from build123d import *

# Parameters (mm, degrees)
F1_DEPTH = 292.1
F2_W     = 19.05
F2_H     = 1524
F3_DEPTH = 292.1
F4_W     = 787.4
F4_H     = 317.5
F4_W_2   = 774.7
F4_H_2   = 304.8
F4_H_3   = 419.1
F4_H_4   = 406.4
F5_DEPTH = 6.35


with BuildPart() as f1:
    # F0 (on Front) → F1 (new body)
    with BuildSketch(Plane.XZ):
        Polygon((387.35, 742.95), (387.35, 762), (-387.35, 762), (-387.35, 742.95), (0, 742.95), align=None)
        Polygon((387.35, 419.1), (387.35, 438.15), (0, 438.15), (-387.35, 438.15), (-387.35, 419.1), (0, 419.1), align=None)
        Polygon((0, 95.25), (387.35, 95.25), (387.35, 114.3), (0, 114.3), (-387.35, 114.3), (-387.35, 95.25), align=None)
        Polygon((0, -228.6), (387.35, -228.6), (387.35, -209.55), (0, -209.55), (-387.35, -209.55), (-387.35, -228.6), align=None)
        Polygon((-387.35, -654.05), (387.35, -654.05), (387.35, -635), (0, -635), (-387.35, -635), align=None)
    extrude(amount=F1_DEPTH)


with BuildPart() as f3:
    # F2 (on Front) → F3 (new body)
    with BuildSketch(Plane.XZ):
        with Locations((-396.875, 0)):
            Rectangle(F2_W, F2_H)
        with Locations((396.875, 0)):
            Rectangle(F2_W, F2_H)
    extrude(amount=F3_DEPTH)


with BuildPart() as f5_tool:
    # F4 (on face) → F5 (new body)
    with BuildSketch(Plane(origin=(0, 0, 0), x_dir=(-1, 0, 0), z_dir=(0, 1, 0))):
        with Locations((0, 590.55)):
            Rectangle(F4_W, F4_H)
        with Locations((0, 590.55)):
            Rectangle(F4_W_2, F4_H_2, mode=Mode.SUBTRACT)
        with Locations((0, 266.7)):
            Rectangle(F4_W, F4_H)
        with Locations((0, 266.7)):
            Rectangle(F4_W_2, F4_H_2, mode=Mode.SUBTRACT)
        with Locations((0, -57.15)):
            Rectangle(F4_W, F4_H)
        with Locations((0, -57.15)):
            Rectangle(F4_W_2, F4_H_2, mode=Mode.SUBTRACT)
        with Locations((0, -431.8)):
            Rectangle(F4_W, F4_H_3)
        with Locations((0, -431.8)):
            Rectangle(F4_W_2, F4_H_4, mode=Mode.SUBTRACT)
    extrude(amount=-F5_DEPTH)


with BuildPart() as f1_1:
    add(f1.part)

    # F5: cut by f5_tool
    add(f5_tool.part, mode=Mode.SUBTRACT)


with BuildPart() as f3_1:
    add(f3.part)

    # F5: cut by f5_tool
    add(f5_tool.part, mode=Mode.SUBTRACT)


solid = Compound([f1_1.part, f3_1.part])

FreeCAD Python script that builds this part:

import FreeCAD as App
import Part
import Sketcher
from FreeCAD import Vector
Q = App.Units.Quantity

doc = App.newDocument("Part")
body = doc.addObject("PartDesign::Body", "Body")
body.AllowCompound = True

# Sketch on XZ plane
sketch1 = body.newObject("Sketcher::SketchObject", "Sketch")
sketch1.AttachmentSupport = (doc.getObject("XZ_Plane"), [""])
sketch1.MapMode = "FlatFace"
sketch1.addGeometry(Part.LineSegment(Vector(387.35, 742.95, 0), Vector(387.35, 762, 0)), False)
sketch1.addGeometry(Part.LineSegment(Vector(387.35, 762, 0), Vector(-387.35, 762, 0)), False)
sketch1.addGeometry(Part.LineSegment(Vector(-387.35, 762, 0), Vector(-387.35, 742.95, 0)), False)
sketch1.addGeometry(Part.LineSegment(Vector(-387.35, 742.95, 0), Vector(387.35, 742.95, 0)), False)
sketch1.addGeometry(Part.LineSegment(Vector(387.35, 419.1, 0), Vector(387.35, 438.15, 0)), False)
sketch1.addGeometry(Part.LineSegment(Vector(387.35, 438.15, 0), Vector(-387.35, 438.15, 0)), False)
sketch1.addGeometry(Part.LineSegment(Vector(-387.35, 438.15, 0), Vector(-387.35, 419.1, 0)), False)
sketch1.addGeometry(Part.LineSegment(Vector(-387.35, 419.1, 0), Vector(387.35, 419.1, 0)), False)
sketch1.addGeometry(Part.LineSegment(Vector(387.35, 95.25, 0), Vector(387.35, 114.3, 0)), False)
sketch1.addGeometry(Part.LineSegment(Vector(387.35, 114.3, 0), Vector(-387.35, 114.3, 0)), False)
sketch1.addGeometry(Part.LineSegment(Vector(-387.35, 114.3, 0), Vector(-387.35, 95.25, 0)), False)
sketch1.addGeometry(Part.LineSegment(Vector(-387.35, 95.25, 0), Vector(387.35, 95.25, 0)), False)
sketch1.addGeometry(Part.LineSegment(Vector(387.35, -228.6, 0), Vector(387.35, -209.55, 0)), False)
sketch1.addGeometry(Part.LineSegment(Vector(387.35, -209.55, 0), Vector(-387.35, -209.55, 0)), False)
sketch1.addGeometry(Part.LineSegment(Vector(-387.35, -209.55, 0), Vector(-387.35, -228.6, 0)), False)
sketch1.addGeometry(Part.LineSegment(Vector(-387.35, -228.6, 0), Vector(387.35, -228.6, 0)), False)
sketch1.addGeometry(Part.LineSegment(Vector(-387.35, -654.05, 0), Vector(387.35, -654.05, 0)), False)
sketch1.addGeometry(Part.LineSegment(Vector(387.35, -654.05, 0), Vector(387.35, -635, 0)), False)
sketch1.addGeometry(Part.LineSegment(Vector(387.35, -635, 0), Vector(-387.35, -635, 0)), False)
sketch1.addGeometry(Part.LineSegment(Vector(-387.35, -635, 0), Vector(-387.35, -654.05, 0)), False)
sketch1.addConstraint(Sketcher.Constraint("Coincident", 0, 2, 1, 1))
sketch1.addConstraint(Sketcher.Constraint("Coincident", 1, 2, 2, 1))
sketch1.addConstraint(Sketcher.Constraint("Coincident", 2, 2, 3, 1))
sketch1.addConstraint(Sketcher.Constraint("Coincident", 3, 2, 0, 1))
sketch1.addConstraint(Sketcher.Constraint("Coincident", 4, 2, 5, 1))
sketch1.addConstraint(Sketcher.Constraint("Coincident", 5, 2, 6, 1))
sketch1.addConstraint(Sketcher.Constraint("Coincident", 6, 2, 7, 1))
sketch1.addConstraint(Sketcher.Constraint("Coincident", 7, 2, 4, 1))
sketch1.addConstraint(Sketcher.Constraint("Coincident", 8, 2, 9, 1))
sketch1.addConstraint(Sketcher.Constraint("Coincident", 9, 2, 10, 1))
sketch1.addConstraint(Sketcher.Constraint("Coincident", 10, 2, 11, 1))
sketch1.addConstraint(Sketcher.Constraint("Coincident", 11, 2, 8, 1))
sketch1.addConstraint(Sketcher.Constraint("Coincident", 12, 2, 13, 1))
sketch1.addConstraint(Sketcher.Constraint("Coincident", 13, 2, 14, 1))
sketch1.addConstraint(Sketcher.Constraint("Coincident", 14, 2, 15, 1))
sketch1.addConstraint(Sketcher.Constraint("Coincident", 15, 2, 12, 1))
sketch1.addConstraint(Sketcher.Constraint("Coincident", 16, 2, 17, 1))
sketch1.addConstraint(Sketcher.Constraint("Coincident", 17, 2, 18, 1))
sketch1.addConstraint(Sketcher.Constraint("Coincident", 18, 2, 19, 1))
sketch1.addConstraint(Sketcher.Constraint("Coincident", 19, 2, 16, 1))
sketch1.addConstraint(Sketcher.Constraint("Vertical", 0))
sketch1.addConstraint(Sketcher.Constraint("Horizontal", 1))
sketch1.addConstraint(Sketcher.Constraint("Vertical", 2))
sketch1.addConstraint(Sketcher.Constraint("Horizontal", 3))
sketch1.addConstraint(Sketcher.Constraint("Vertical", 4))
sketch1.addConstraint(Sketcher.Constraint("Horizontal", 5))
sketch1.addConstraint(Sketcher.Constraint("Vertical", 6))
sketch1.addConstraint(Sketcher.Constraint("Horizontal", 7))
sketch1.addConstraint(Sketcher.Constraint("Vertical", 8))
sketch1.addConstraint(Sketcher.Constraint("Horizontal", 9))
sketch1.addConstraint(Sketcher.Constraint("Vertical", 10))
sketch1.addConstraint(Sketcher.Constraint("Horizontal", 11))
sketch1.addConstraint(Sketcher.Constraint("Vertical", 12))
sketch1.addConstraint(Sketcher.Constraint("Horizontal", 13))
sketch1.addConstraint(Sketcher.Constraint("Vertical", 14))
sketch1.addConstraint(Sketcher.Constraint("Horizontal", 15))
sketch1.addConstraint(Sketcher.Constraint("Horizontal", 16))
sketch1.addConstraint(Sketcher.Constraint("Vertical", 17))
sketch1.addConstraint(Sketcher.Constraint("Horizontal", 18))
sketch1.addConstraint(Sketcher.Constraint("Vertical", 19))
sketch1.addConstraint(Sketcher.Constraint("Vertical", 3, 2, 4, 2))
sketch1.addConstraint(Sketcher.Constraint("Vertical", 2, 2, 5, 2))
sketch1.addConstraint(Sketcher.Constraint("Vertical", 7, 2, 8, 2))
sketch1.addConstraint(Sketcher.Constraint("Vertical", 6, 2, 9, 2))
sketch1.addConstraint(Sketcher.Constraint("Vertical", 11, 2, 12, 2))
sketch1.addConstraint(Sketcher.Constraint("Vertical", 10, 2, 13, 2))
sketch1.addConstraint(Sketcher.Constraint("Vertical", 15, 2, 16, 2))
sketch1.addConstraint(Sketcher.Constraint("Vertical", 14, 2, 18, 2))
sketch1.addConstraint(Sketcher.Constraint("Equal", 2, 4))
sketch1.addConstraint(Sketcher.Constraint("Equal", 6, 8))
sketch1.addConstraint(Sketcher.Constraint("Equal", 10, 12))
sketch1.addConstraint(Sketcher.Constraint("Equal", 14, 17))
sketch1.addConstraint(Sketcher.Constraint("DistanceX", 1, 2, 1, 1, Q("30.5 in")))
sketch1.addConstraint(Sketcher.Constraint("DistanceY", -1, 1, 0, 2, Q("30 in")))
sketch1.addConstraint(Sketcher.Constraint("DistanceY", 14, 2, -1, 1, Q("9 in")))
sketch1.addConstraint(Sketcher.Constraint("DistanceY", 17, 2, -1, 1, Q("25 in")))
sketch1.addConstraint(Sketcher.Constraint("DistanceY", 4, 2, 3, 2, Q("12 in")))
sketch1.addConstraint(Sketcher.Constraint("DistanceY", 8, 2, 7, 2, Q("12 in")))
sketch1.addConstraint(Sketcher.Constraint("DistanceY", 12, 2, 11, 2, Q("12 in")))
sketch1.addConstraint(Sketcher.Constraint("DistanceX", -1, 1, 0, 2, Q("15.25 in")))
pad1 = body.newObject("PartDesign::Pad", "Pad")
pad1.Profile = sketch1
pad1.Length = Q("11.5 in")
body2 = doc.addObject("PartDesign::Body", "Body001")
body2.AllowCompound = True

# Sketch on XZ plane
sketch2 = body2.newObject("Sketcher::SketchObject", "Sketch001")
sketch2.AttachmentSupport = (doc.getObject("XZ_Plane001"), [""])
sketch2.MapMode = "FlatFace"
sketch2.addGeometry(Part.LineSegment(Vector(-406.4, 762, 0), Vector(-406.4, -762, 0)), False)
sketch2.addGeometry(Part.LineSegment(Vector(-406.4, -762, 0), Vector(-387.35, -762, 0)), False)
sketch2.addGeometry(Part.LineSegment(Vector(-387.35, -762, 0), Vector(-387.35, 762, 0)), False)
sketch2.addGeometry(Part.LineSegment(Vector(-387.35, 762, 0), Vector(-406.4, 762, 0)), False)
sketch2.addGeometry(Part.LineSegment(Vector(387.35, 762, 0), Vector(387.35, -762, 0)), False)
sketch2.addGeometry(Part.LineSegment(Vector(387.35, -762, 0), Vector(406.4, -762, 0)), False)
sketch2.addGeometry(Part.LineSegment(Vector(406.4, -762, 0), Vector(406.4, 762, 0)), False)
sketch2.addGeometry(Part.LineSegment(Vector(406.4, 762, 0), Vector(387.35, 762, 0)), False)
sketch2.addConstraint(Sketcher.Constraint("Coincident", 0, 2, 1, 1))
sketch2.addConstraint(Sketcher.Constraint("Coincident", 1, 2, 2, 1))
sketch2.addConstraint(Sketcher.Constraint("Coincident", 2, 2, 3, 1))
sketch2.addConstraint(Sketcher.Constraint("Coincident", 3, 2, 0, 1))
sketch2.addConstraint(Sketcher.Constraint("Coincident", 4, 2, 5, 1))
sketch2.addConstraint(Sketcher.Constraint("Coincident", 5, 2, 6, 1))
sketch2.addConstraint(Sketcher.Constraint("Coincident", 6, 2, 7, 1))
sketch2.addConstraint(Sketcher.Constraint("Coincident", 7, 2, 4, 1))
sketch2.addConstraint(Sketcher.Constraint("Vertical", 0))
sketch2.addConstraint(Sketcher.Constraint("Horizontal", 1))
sketch2.addConstraint(Sketcher.Constraint("Vertical", 2))
sketch2.addConstraint(Sketcher.Constraint("Horizontal", 3))
sketch2.addConstraint(Sketcher.Constraint("Vertical", 4))
sketch2.addConstraint(Sketcher.Constraint("Horizontal", 5))
sketch2.addConstraint(Sketcher.Constraint("Vertical", 6))
sketch2.addConstraint(Sketcher.Constraint("Horizontal", 7))
sketch2.addConstraint(Sketcher.Constraint("Symmetric", 2, 2, 4, 2, -1, 1))
sketch2.addConstraint(Sketcher.Constraint("Symmetric", 0, 2, 6, 2, -1, 1))
sketch2.addConstraint(Sketcher.Constraint("Horizontal", 1, 2, 4, 2))
sketch2.addConstraint(Sketcher.Constraint("DistanceY", 0, 2, 0, 1, Q("60 in")))
sketch2.addConstraint(Sketcher.Constraint("DistanceX", 0, 2, -1, 1, Q("16 in")))
sketch2.addConstraint(Sketcher.Constraint("DistanceX", 1, 1, 1, 2, Q("0.75 in")))
pad2 = body2.newObject("PartDesign::Pad", "Pad001")
pad2.Profile = sketch2
pad2.Length = Q("11.5 in")
body3 = doc.addObject("PartDesign::Body", "Body002")
body3.AllowCompound = True

# Sketch on XZ plane
sketch3 = body3.newObject("Sketcher::SketchObject", "Sketch002")
sketch3.AttachmentSupport = (doc.getObject("XZ_Plane002"), [""])
sketch3.MapMode = "FlatFace"
sketch3.addGeometry(Part.LineSegment(Vector(393.7, 749.3, 0), Vector(393.7, 431.8, 0)), False)
sketch3.addGeometry(Part.LineSegment(Vector(393.7, 431.8, 0), Vector(-393.7, 431.8, 0)), False)
sketch3.addGeometry(Part.LineSegment(Vector(-393.7, 431.8, 0), Vector(-393.7, 749.3, 0)), False)
sketch3.addGeometry(Part.LineSegment(Vector(-393.7, 749.3, 0), Vector(393.7, 749.3, 0)), False)
sketch3.addGeometry(Part.LineSegment(Vector(-387.35, 438.15, 0), Vector(387.35, 438.15, 0)), False)
sketch3.addGeometry(Part.LineSegment(Vector(387.35, 438.15, 0), Vector(387.35, 742.95, 0)), False)
sketch3.addGeometry(Part.LineSegment(Vector(387.35, 742.95, 0), Vector(-387.35, 742.95, 0)), False)
sketch3.addGeometry(Part.LineSegment(Vector(-387.35, 742.95, 0), Vector(-387.35, 438.15, 0)), False)
sketch3.addGeometry(Part.LineSegment(Vector(393.7, 425.45, 0), Vector(393.7, 107.95, 0)), False)
sketch3.addGeometry(Part.LineSegment(Vector(393.7, 107.95, 0), Vector(-393.7, 107.95, 0)), False)
sketch3.addGeometry(Part.LineSegment(Vector(-393.7, 107.95, 0), Vector(-393.7, 425.45, 0)), False)
sketch3.addGeometry(Part.LineSegment(Vector(-393.7, 425.45, 0), Vector(393.7, 425.45, 0)), False)
sketch3.addGeometry(Part.LineSegment(Vector(-387.35, 114.3, 0), Vector(387.35, 114.3, 0)), False)
sketch3.addGeometry(Part.LineSegment(Vector(387.35, 114.3, 0), Vector(387.35, 419.1, 0)), False)
sketch3.addGeometry(Part.LineSegment(Vector(387.35, 419.1, 0), Vector(-387.35, 419.1, 0)), False)
sketch3.addGeometry(Part.LineSegment(Vector(-387.35, 419.1, 0), Vector(-387.35, 114.3, 0)), False)
sketch3.addGeometry(Part.LineSegment(Vector(393.7, 101.6, 0), Vector(393.7, -215.9, 0)), False)
sketch3.addGeometry(Part.LineSegment(Vector(393.7, -215.9, 0), Vector(-393.7, -215.9, 0)), False)
sketch3.addGeometry(Part.LineSegment(Vector(-393.7, -215.9, 0), Vector(-393.7, 101.6, 0)), False)
sketch3.addGeometry(Part.LineSegment(Vector(-393.7, 101.6, 0), Vector(393.7, 101.6, 0)), False)
sketch3.addGeometry(Part.LineSegment(Vector(-387.35, -209.55, 0), Vector(387.35, -209.55, 0)), False)
sketch3.addGeometry(Part.LineSegment(Vector(387.35, -209.55, 0), Vector(387.35, 95.25, 0)), False)
sketch3.addGeometry(Part.LineSegment(Vector(387.35, 95.25, 0), Vector(-387.35, 95.25, 0)), False)
sketch3.addGeometry(Part.LineSegment(Vector(-387.35, 95.25, 0), Vector(-387.35, -209.55, 0)), False)
sketch3.addGeometry(Part.LineSegment(Vector(393.7, -222.25, 0), Vector(393.7, -641.35, 0)), False)
sketch3.addGeometry(Part.LineSegment(Vector(393.7, -641.35, 0), Vector(-393.7, -641.35, 0)), False)
sketch3.addGeometry(Part.LineSegment(Vector(-393.7, -641.35, 0), Vector(-393.7, -222.25, 0)), False)
sketch3.addGeometry(Part.LineSegment(Vector(-393.7, -222.25, 0), Vector(393.7, -222.25, 0)), False)
sketch3.addGeometry(Part.LineSegment(Vector(-387.35, -635, 0), Vector(387.35, -635, 0)), False)
sketch3.addGeometry(Part.LineSegment(Vector(387.35, -635, 0), Vector(387.35, -228.6, 0)), False)
sketch3.addGeometry(Part.LineSegment(Vector(387.35, -228.6, 0), Vector(-387.35, -228.6, 0)), False)
sketch3.addGeometry(Part.LineSegment(Vector(-387.35, -228.6, 0), Vector(-387.35, -635, 0)), False)
sketch3.addConstraint(Sketcher.Constraint("Coincident", 0, 2, 1, 1))
sketch3.addConstraint(Sketcher.Constraint("Coincident", 1, 2, 2, 1))
sketch3.addConstraint(Sketcher.Constraint("Coincident", 2, 2, 3, 1))
sketch3.addConstraint(Sketcher.Constraint("Coincident", 3, 2, 0, 1))
sketch3.addConstraint(Sketcher.Constraint("Coincident", 4, 2, 5, 1))
sketch3.addConstraint(Sketcher.Constraint("Coincident", 5, 2, 6, 1))
sketch3.addConstraint(Sketcher.Constraint("Coincident", 6, 2, 7, 1))
sketch3.addConstraint(Sketcher.Constraint("Coincident", 7, 2, 4, 1))
sketch3.addConstraint(Sketcher.Constraint("Coincident", 8, 2, 9, 1))
sketch3.addConstraint(Sketcher.Constraint("Coincident", 9, 2, 10, 1))
sketch3.addConstraint(Sketcher.Constraint("Coincident", 10, 2, 11, 1))
sketch3.addConstraint(Sketcher.Constraint("Coincident", 11, 2, 8, 1))
sketch3.addConstraint(Sketcher.Constraint("Coincident", 12, 2, 13, 1))
sketch3.addConstraint(Sketcher.Constraint("Coincident", 13, 2, 14, 1))
sketch3.addConstraint(Sketcher.Constraint("Coincident", 14, 2, 15, 1))
sketch3.addConstraint(Sketcher.Constraint("Coincident", 15, 2, 12, 1))
sketch3.addConstraint(Sketcher.Constraint("Coincident", 16, 2, 17, 1))
sketch3.addConstraint(Sketcher.Constraint("Coincident", 17, 2, 18, 1))
sketch3.addConstraint(Sketcher.Constraint("Coincident", 18, 2, 19, 1))
sketch3.addConstraint(Sketcher.Constraint("Coincident", 19, 2, 16, 1))
sketch3.addConstraint(Sketcher.Constraint("Coincident", 20, 2, 21, 1))
sketch3.addConstraint(Sketcher.Constraint("Coincident", 21, 2, 22, 1))
sketch3.addConstraint(Sketcher.Constraint("Coincident", 22, 2, 23, 1))
sketch3.addConstraint(Sketcher.Constraint("Coincident", 23, 2, 20, 1))
sketch3.addConstraint(Sketcher.Constraint("Coincident", 24, 2, 25, 1))
sketch3.addConstraint(Sketcher.Constraint("Coincident", 25, 2, 26, 1))
sketch3.addConstraint(Sketcher.Constraint("Coincident", 26, 2, 27, 1))
sketch3.addConstraint(Sketcher.Constraint("Coincident", 27, 2, 24, 1))
sketch3.addConstraint(Sketcher.Constraint("Coincident", 28, 2, 29, 1))
sketch3.addConstraint(Sketcher.Constraint("Coincident", 29, 2, 30, 1))
sketch3.addConstraint(Sketcher.Constraint("Coincident", 30, 2, 31, 1))
sketch3.addConstraint(Sketcher.Constraint("Coincident", 31, 2, 28, 1))
sketch3.addConstraint(Sketcher.Constraint("Vertical", 0))
sketch3.addConstraint(Sketcher.Constraint("Horizontal", 1))
sketch3.addConstraint(Sketcher.Constraint("Vertical", 2))
sketch3.addConstraint(Sketcher.Constraint("Horizontal", 3))
sketch3.addConstraint(Sketcher.Constraint("Horizontal", 4))
sketch3.addConstraint(Sketcher.Constraint("Vertical", 5))
sketch3.addConstraint(Sketcher.Constraint("Horizontal", 6))
sketch3.addConstraint(Sketcher.Constraint("Vertical", 7))
sketch3.addConstraint(Sketcher.Constraint("Vertical", 8))
sketch3.addConstraint(Sketcher.Constraint("Horizontal", 9))
sketch3.addConstraint(Sketcher.Constraint("Vertical", 10))
sketch3.addConstraint(Sketcher.Constraint("Horizontal", 11))
sketch3.addConstraint(Sketcher.Constraint("Horizontal", 12))
sketch3.addConstraint(Sketcher.Constraint("Vertical", 13))
sketch3.addConstraint(Sketcher.Constraint("Horizontal", 14))
sketch3.addConstraint(Sketcher.Constraint("Vertical", 15))
sketch3.addConstraint(Sketcher.Constraint("Vertical", 16))
sketch3.addConstraint(Sketcher.Constraint("Horizontal", 17))
sketch3.addConstraint(Sketcher.Constraint("Vertical", 18))
sketch3.addConstraint(Sketcher.Constraint("Horizontal", 19))
sketch3.addConstraint(Sketcher.Constraint("Horizontal", 20))
sketch3.addConstraint(Sketcher.Constraint("Vertical", 21))
sketch3.addConstraint(Sketcher.Constraint("Horizontal", 22))
sketch3.addConstraint(Sketcher.Constraint("Vertical", 23))
sketch3.addConstraint(Sketcher.Constraint("Vertical", 24))
sketch3.addConstraint(Sketcher.Constraint("Horizontal", 25))
sketch3.addConstraint(Sketcher.Constraint("Vertical", 26))
sketch3.addConstraint(Sketcher.Constraint("Horizontal", 27))
sketch3.addConstraint(Sketcher.Constraint("Horizontal", 28))
sketch3.addConstraint(Sketcher.Constraint("Vertical", 29))
sketch3.addConstraint(Sketcher.Constraint("Horizontal", 30))
sketch3.addConstraint(Sketcher.Constraint("Vertical", 31))
sketch3.addConstraint(Sketcher.Constraint("Vertical", 3, 2, 8, 2))
sketch3.addConstraint(Sketcher.Constraint("Vertical", 2, 2, 9, 2))
sketch3.addConstraint(Sketcher.Constraint("Vertical", 5, 2, 12, 2))
sketch3.addConstraint(Sketcher.Constraint("Vertical", 7, 2, 14, 2))
sketch3.addConstraint(Sketcher.Constraint("Vertical", 11, 2, 16, 2))
sketch3.addConstraint(Sketcher.Constraint("Vertical", 10, 2, 17, 2))
sketch3.addConstraint(Sketcher.Constraint("Vertical", 13, 2, 20, 2))
sketch3.addConstraint(Sketcher.Constraint("Vertical", 15, 2, 22, 2))
sketch3.addConstraint(Sketcher.Constraint("Vertical", 19, 2, 24, 2))
sketch3.addConstraint(Sketcher.Constraint("Vertical", 18, 2, 25, 2))
sketch3.addConstraint(Sketcher.Constraint("Vertical", 21, 2, 28, 2))
sketch3.addConstraint(Sketcher.Constraint("Vertical", 23, 2, 30, 2))
sketch3.addConstraint(Sketcher.Constraint("Equal", 2, 8))
sketch3.addConstraint(Sketcher.Constraint("Equal", 7, 13))
sketch3.addConstraint(Sketcher.Constraint("Equal", 10, 16))
sketch3.addConstraint(Sketcher.Constraint("Equal", 15, 21))
sketch3.addConstraint(Sketcher.Constraint("DistanceX", 1, 2, 1, 1, Q("31 in")))
sketch3.addConstraint(Sketcher.Constraint("DistanceY", 5, 1, 5, 2, Q("12 in")))
sketch3.addConstraint(Sketcher.Constraint("DistanceY", 29, 1, 29, 2, Q("16 in")))
sketch3.addConstraint(Sketcher.Constraint("DistanceX", 4, 1, 4, 2, Q("30.5 in")))
sketch3.addConstraint(Sketcher.Constraint("DistanceY", 0, 2, 0, 1, Q("12.5 in")))
sketch3.addConstraint(Sketcher.Constraint("DistanceY", 24, 2, 24, 1, Q("16.5 in")))
sketch3.addConstraint(Sketcher.Constraint("DistanceY", -1, 1, 0, 2, Q("17 in")))
sketch3.addConstraint(Sketcher.Constraint("DistanceY", -1, 1, 18, 2, Q("4 in")))
sketch3.addConstraint(Sketcher.Constraint("DistanceY", 28, 2, -1, 1, Q("25 in")))
sketch3.addConstraint(Sketcher.Constraint("DistanceY", 8, 2, 4, 2, Q("13 in")))
sketch3.addConstraint(Sketcher.Constraint("DistanceY", 16, 2, 12, 2, Q("13 in")))
sketch3.addConstraint(Sketcher.Constraint("DistanceY", 24, 2, 20, 2, Q("17 in")))
sketch3.addConstraint(Sketcher.Constraint("DistanceY", 26, 2, 9, 2, Q("13 in")))
sketch3.addConstraint(Sketcher.Constraint("DistanceX", -1, 1, 0, 2, Q("15.5 in")))
sketch3.addConstraint(Sketcher.Constraint("DistanceX", -1, 1, 4, 2, Q("15.25 in")))
sketch3.addConstraint(Sketcher.Constraint("DistanceY", -1, 1, 4, 2, Q("17.25 in")))
pad3 = body3.newObject("PartDesign::Pad", "Pad002")
pad3.Profile = sketch3
pad3.Length = Q("0.25 in")
body.AllowCompound = True
doc.recompute()

body4 = doc.addObject("PartDesign::Body", "Body003")
body4.BaseFeature = body3
boolean = body.newObject("PartDesign::Boolean", "Boolean")
boolean.Type = "Cut"
boolean.addObjects([body4])
doc.recompute()
body2.AllowCompound = True
doc.recompute()

boolean2 = body2.newObject("PartDesign::Boolean", "Boolean001")
boolean2.Type = "Cut"
boolean2.addObjects([body3])

doc.recompute()
